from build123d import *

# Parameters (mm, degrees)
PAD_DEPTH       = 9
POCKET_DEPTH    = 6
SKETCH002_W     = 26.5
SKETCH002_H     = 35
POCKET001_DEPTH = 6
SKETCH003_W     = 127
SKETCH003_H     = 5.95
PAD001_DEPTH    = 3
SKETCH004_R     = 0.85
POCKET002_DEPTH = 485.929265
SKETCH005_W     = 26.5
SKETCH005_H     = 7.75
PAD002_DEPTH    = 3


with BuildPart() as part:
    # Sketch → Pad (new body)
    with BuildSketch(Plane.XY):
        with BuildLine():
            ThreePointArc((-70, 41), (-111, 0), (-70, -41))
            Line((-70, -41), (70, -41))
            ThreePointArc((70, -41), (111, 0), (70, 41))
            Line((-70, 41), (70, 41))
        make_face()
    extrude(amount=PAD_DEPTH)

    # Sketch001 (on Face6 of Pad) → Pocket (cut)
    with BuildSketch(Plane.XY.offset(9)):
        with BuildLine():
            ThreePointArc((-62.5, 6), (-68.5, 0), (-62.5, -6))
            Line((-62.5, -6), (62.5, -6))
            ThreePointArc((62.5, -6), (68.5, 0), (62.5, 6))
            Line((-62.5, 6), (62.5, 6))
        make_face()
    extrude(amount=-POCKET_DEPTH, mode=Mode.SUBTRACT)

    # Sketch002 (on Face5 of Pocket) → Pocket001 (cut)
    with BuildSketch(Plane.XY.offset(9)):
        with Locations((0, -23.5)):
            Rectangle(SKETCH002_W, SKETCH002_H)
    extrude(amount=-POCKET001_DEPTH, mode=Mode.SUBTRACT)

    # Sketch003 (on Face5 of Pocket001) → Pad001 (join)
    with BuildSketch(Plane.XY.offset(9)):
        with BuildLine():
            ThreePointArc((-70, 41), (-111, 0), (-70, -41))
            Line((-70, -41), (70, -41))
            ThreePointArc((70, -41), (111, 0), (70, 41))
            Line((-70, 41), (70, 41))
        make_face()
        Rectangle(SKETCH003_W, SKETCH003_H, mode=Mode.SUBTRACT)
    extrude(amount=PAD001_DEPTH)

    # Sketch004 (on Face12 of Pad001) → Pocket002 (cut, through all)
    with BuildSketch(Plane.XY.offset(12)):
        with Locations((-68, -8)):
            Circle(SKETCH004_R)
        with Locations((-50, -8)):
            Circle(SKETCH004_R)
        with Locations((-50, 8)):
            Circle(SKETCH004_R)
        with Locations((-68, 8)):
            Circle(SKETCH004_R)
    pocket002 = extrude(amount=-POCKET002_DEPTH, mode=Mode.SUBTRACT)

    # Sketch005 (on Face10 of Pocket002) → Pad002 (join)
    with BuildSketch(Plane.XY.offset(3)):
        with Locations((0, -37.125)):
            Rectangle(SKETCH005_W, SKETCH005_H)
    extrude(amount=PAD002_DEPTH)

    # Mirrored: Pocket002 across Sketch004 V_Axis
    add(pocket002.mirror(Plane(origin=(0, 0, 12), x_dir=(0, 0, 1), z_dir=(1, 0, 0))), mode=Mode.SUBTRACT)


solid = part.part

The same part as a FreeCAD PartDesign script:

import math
import FreeCAD as App
import Part
import Sketcher


def add_polygon(sketch, points):
    """Adds a closed chain of lines whose ends are joined by coincident constraints."""
    first, n = sketch.GeometryCount, len(points)
    for a, b in zip(points, points[1:] + points[:1]):
        sketch.addGeometry(Part.LineSegment(App.Vector(*a, 0), App.Vector(*b, 0)), False)
    for i in range(n):
        sketch.addConstraint(Sketcher.Constraint("Coincident", first + i, 2, first + (i + 1) % n, 1))

doc = App.newDocument("Part")
body = doc.addObject("PartDesign::Body", "Body")

sketch1 = body.newObject("Sketcher::SketchObject", "Sketch")
sketch1.AttachmentSupport = (doc.getObject("XY_Plane"), [""])
sketch1.MapMode = "FlatFace"
sketch1.addGeometry([
    Part.ArcOfCircle(Part.Circle(App.Vector(-70, 0, 0), App.Vector(0, 0, 1), 41), math.radians(90), math.radians(270)),
    Part.LineSegment(App.Vector(-70, -41, 0), App.Vector(70, -41, 0)),
    Part.ArcOfCircle(Part.Circle(App.Vector(70, 0, 0), App.Vector(0, 0, 1), 41), math.radians(-90), math.radians(90)),
    Part.LineSegment(App.Vector(70, 41, 0), App.Vector(-70, 41, 0)),
], False)
sketch1.addConstraint([
    Sketcher.Constraint("Tangent", 0, 2, 1, 1),
    Sketcher.Constraint("Tangent", 1, 2, 2, 1),
    Sketcher.Constraint("Tangent", 2, 2, 3, 1),
    Sketcher.Constraint("Tangent", 3, 2, 0, 1),
    Sketcher.Constraint("Horizontal", 1),
    Sketcher.Constraint("Horizontal", 3),
    Sketcher.Constraint("Symmetric", 0, 3, 2, 3, -1, 1),
    Sketcher.Constraint("Radius", 0, 41.0),
    Sketcher.Constraint("DistanceX", 1, 1, 1, 2, 140.0),
])
pad1 = body.newObject("PartDesign::Pad", "Pad")
pad1.Profile = sketch1
pad1.Length = 9

sketch2 = body.newObject("Sketcher::SketchObject", "Sketch001")
sketch2.AttachmentSupport = (doc.getObject("XY_Plane"), [""])
sketch2.MapMode = "FlatFace"
sketch2.AttachmentOffset = App.Placement(App.Vector(0, 0, 9), App.Rotation())
sketch2.addGeometry([
    Part.ArcOfCircle(Part.Circle(App.Vector(-62, 0, 0), App.Vector(0, 0, 1), 6), math.radians(90), math.radians(270)),
    Part.LineSegment(App.Vector(-62, -6, 0), App.Vector(62, -6, 0)),
    Part.ArcOfCircle(Part.Circle(App.Vector(62, 0, 0), App.Vector(0, 0, 1), 6), math.radians(-90), math.radians(90)),
    Part.LineSegment(App.Vector(62, 6, 0), App.Vector(-62, 6, 0)),
], False)
sketch2.addConstraint([
    Sketcher.Constraint("Tangent", 0, 2, 1, 1),
    Sketcher.Constraint("Tangent", 1, 2, 2, 1),
    Sketcher.Constraint("Tangent", 2, 2, 3, 1),
    Sketcher.Constraint("Tangent", 3, 2, 0, 1),
    Sketcher.Constraint("Horizontal", 1),
    Sketcher.Constraint("Horizontal", 3),
    Sketcher.Constraint("Symmetric", 0, 3, 2, 3, -1, 1),
    Sketcher.Constraint("Radius", 0, 6.0),
    Sketcher.Constraint("DistanceX", 1, 1, 1, 2, 125.0),
])
pocket1 = body.newObject("PartDesign::Pocket", "Pocket")
pocket1.Profile = sketch2
pocket1.Length = 6

sketch3 = body.newObject("Sketcher::SketchObject", "Sketch002")
sketch3.AttachmentSupport = (doc.getObject("XY_Plane"), [""])
sketch3.MapMode = "FlatFace"
sketch3.AttachmentOffset = App.Placement(App.Vector(0, 0, 9), App.Rotation())
add_polygon(sketch3, [(-13, -6), (-13, -41), (13, -41), (13, -6)])
sketch3.addConstraint([
    Sketcher.Constraint("Vertical", 0),
    Sketcher.Constraint("Horizontal", 1),
    Sketcher.Constraint("Vertical", 2),
    Sketcher.Constraint("Horizontal", 3),
    Sketcher.Constraint("DistanceY", 0, 2, 0, 1, 35.0),
    Sketcher.Constraint("DistanceX", 1, 1, 1, 2, 26.5),
    Sketcher.Constraint("DistanceY", 0, 2, -1, 1, 41.0),
    Sketcher.Constraint("DistanceX", 0, 2, -1, 1, 13.25),
])
pocket2 = body.newObject("PartDesign::Pocket", "Pocket001")
pocket2.Profile = sketch3
pocket2.Length = 6

sketch4 = body.newObject("Sketcher::SketchObject", "Sketch003")
sketch4.AttachmentSupport = (doc.getObject("XY_Plane"), [""])
sketch4.MapMode = "FlatFace"
sketch4.AttachmentOffset = App.Placement(App.Vector(0, 0, 9), App.Rotation())
sketch4.addGeometry(Part.ArcOfCircle(Part.Circle(App.Vector(-70, 0, 0), App.Vector(0, 0, 1), 41), math.radians(90), math.radians(270)), False)
sketch4.addGeometry(Part.LineSegment(App.Vector(-70, -41, 0), App.Vector(70, -41, 0)), False)
sketch4.addGeometry(Part.ArcOfCircle(Part.Circle(App.Vector(70, 0, 0), App.Vector(0, 0, 1), 41), math.radians(-90), math.radians(90)), False)
sketch4.addGeometry(Part.LineSegment(App.Vector(70, 41, 0), App.Vector(-70, 41, 0)), False)
add_polygon(sketch4, [(64, -3), (-64, -3), (-64, 3), (64, 3)])
sketch4.addConstraint([
    Sketcher.Constraint("Tangent", 0, 2, 1, 1),
    Sketcher.Constraint("Tangent", 1, 2, 2, 1),
    Sketcher.Constraint("Tangent", 2, 2, 3, 1),
    Sketcher.Constraint("Tangent", 3, 2, 0, 1),
    Sketcher.Constraint("Horizontal", 1),
    Sketcher.Constraint("Horizontal", 3),
    Sketcher.Constraint("Horizontal", 4),
    Sketcher.Constraint("Vertical", 5),
    Sketcher.Constraint("Horizontal", 6),
    Sketcher.Constraint("Vertical", 7),
    Sketcher.Constraint("Symmetric", 0, 3, 2, 3, -1, 1),
    Sketcher.Constraint("Symmetric", 4, 2, 6, 2, -1, 1),
    Sketcher.Constraint("Radius", 0, 41.0),
    Sketcher.Constraint("DistanceX", 1, 1, 1, 2, 140.0),
    Sketcher.Constraint("DistanceX", 4, 2, 4, 1, 127.0),
    Sketcher.Constraint("DistanceY", 5, 1, 5, 2, 5.95),
])
pad2 = body.newObject("PartDesign::Pad", "Pad001")
pad2.Profile = sketch4
pad2.Length = 3

sketch5 = body.newObject("Sketcher::SketchObject", "Sketch004")
sketch5.AttachmentSupport = (doc.getObject("XY_Plane"), [""])
sketch5.MapMode = "FlatFace"
sketch5.AttachmentOffset = App.Placement(App.Vector(0, 0, 12), App.Rotation())
sketch5.addGeometry([
    Part.Circle(App.Vector(-68, -8, 0), App.Vector(0, 0, 1), 0.8),
    Part.Circle(App.Vector(-50, -8, 0), App.Vector(0, 0, 1), 0.8),
    Part.Circle(App.Vector(-50, 8, 0), App.Vector(0, 0, 1), 0.8),
    Part.Circle(App.Vector(-68, 8, 0), App.Vector(0, 0, 1), 0.8),
], False)
sketch5.addConstraint([
    Sketcher.Constraint("Equal", 0, 1),
    Sketcher.Constraint("Equal", 1, 2),
    Sketcher.Constraint("Equal", 2, 3),
    Sketcher.Constraint("Symmetric", 1, 3, 2, 3, -1),
    Sketcher.Constraint("Symmetric", 0, 3, 3, 3, -1),
    Sketcher.Constraint("Horizontal", 0, 3, 1, 3),
    Sketcher.Constraint("Diameter", 0, 1.7),
    Sketcher.Constraint("DistanceX", 0, 3, -1, 1, 68.0),
    Sketcher.Constraint("DistanceY", 0, 3, -1, 1, 8.0),
    Sketcher.Constraint("DistanceX", 1, 3, -1, 1, 50.0),
])
pocket3 = body.newObject("PartDesign::Pocket", "Pocket002")
pocket3.Profile = sketch5
pocket3.Type = "ThroughAll"

sketch6 = body.newObject("Sketcher::SketchObject", "Sketch005")
sketch6.AttachmentSupport = (doc.getObject("XY_Plane"), [""])
sketch6.MapMode = "FlatFace"
sketch6.AttachmentOffset = App.Placement(App.Vector(0, 0, 3), App.Rotation())
add_polygon(sketch6, [(-13, -33), (-13, -41), (13, -41), (13, -33)])
sketch6.addConstraint([
    Sketcher.Constraint("Vertical", 0),
    Sketcher.Constraint("Horizontal", 1),
    Sketcher.Constraint("Vertical", 2),
    Sketcher.Constraint("Horizontal", 3),
    Sketcher.Constraint("DistanceX", 1, 1, 1, 2, 26.5),
    Sketcher.Constraint("DistanceY", 0, 2, -1, 1, 41.0),
    Sketcher.Constraint("DistanceY", 0, 2, 0, 1, 7.75),
    Sketcher.Constraint("DistanceX", 0, 2, -1, 1, 13.25),
])
pad3 = body.newObject("PartDesign::Pad", "Pad002")
pad3.Profile = sketch6
pad3.Length = 3
doc.recompute()

mirrored = body.newObject("PartDesign::Mirrored", "Mirrored")
mirrored.Originals = [pocket3]
mirrored.MirrorPlane = (doc.getObject("YZ_Plane"), [""])
body.Tip = mirrored

doc.recompute()
